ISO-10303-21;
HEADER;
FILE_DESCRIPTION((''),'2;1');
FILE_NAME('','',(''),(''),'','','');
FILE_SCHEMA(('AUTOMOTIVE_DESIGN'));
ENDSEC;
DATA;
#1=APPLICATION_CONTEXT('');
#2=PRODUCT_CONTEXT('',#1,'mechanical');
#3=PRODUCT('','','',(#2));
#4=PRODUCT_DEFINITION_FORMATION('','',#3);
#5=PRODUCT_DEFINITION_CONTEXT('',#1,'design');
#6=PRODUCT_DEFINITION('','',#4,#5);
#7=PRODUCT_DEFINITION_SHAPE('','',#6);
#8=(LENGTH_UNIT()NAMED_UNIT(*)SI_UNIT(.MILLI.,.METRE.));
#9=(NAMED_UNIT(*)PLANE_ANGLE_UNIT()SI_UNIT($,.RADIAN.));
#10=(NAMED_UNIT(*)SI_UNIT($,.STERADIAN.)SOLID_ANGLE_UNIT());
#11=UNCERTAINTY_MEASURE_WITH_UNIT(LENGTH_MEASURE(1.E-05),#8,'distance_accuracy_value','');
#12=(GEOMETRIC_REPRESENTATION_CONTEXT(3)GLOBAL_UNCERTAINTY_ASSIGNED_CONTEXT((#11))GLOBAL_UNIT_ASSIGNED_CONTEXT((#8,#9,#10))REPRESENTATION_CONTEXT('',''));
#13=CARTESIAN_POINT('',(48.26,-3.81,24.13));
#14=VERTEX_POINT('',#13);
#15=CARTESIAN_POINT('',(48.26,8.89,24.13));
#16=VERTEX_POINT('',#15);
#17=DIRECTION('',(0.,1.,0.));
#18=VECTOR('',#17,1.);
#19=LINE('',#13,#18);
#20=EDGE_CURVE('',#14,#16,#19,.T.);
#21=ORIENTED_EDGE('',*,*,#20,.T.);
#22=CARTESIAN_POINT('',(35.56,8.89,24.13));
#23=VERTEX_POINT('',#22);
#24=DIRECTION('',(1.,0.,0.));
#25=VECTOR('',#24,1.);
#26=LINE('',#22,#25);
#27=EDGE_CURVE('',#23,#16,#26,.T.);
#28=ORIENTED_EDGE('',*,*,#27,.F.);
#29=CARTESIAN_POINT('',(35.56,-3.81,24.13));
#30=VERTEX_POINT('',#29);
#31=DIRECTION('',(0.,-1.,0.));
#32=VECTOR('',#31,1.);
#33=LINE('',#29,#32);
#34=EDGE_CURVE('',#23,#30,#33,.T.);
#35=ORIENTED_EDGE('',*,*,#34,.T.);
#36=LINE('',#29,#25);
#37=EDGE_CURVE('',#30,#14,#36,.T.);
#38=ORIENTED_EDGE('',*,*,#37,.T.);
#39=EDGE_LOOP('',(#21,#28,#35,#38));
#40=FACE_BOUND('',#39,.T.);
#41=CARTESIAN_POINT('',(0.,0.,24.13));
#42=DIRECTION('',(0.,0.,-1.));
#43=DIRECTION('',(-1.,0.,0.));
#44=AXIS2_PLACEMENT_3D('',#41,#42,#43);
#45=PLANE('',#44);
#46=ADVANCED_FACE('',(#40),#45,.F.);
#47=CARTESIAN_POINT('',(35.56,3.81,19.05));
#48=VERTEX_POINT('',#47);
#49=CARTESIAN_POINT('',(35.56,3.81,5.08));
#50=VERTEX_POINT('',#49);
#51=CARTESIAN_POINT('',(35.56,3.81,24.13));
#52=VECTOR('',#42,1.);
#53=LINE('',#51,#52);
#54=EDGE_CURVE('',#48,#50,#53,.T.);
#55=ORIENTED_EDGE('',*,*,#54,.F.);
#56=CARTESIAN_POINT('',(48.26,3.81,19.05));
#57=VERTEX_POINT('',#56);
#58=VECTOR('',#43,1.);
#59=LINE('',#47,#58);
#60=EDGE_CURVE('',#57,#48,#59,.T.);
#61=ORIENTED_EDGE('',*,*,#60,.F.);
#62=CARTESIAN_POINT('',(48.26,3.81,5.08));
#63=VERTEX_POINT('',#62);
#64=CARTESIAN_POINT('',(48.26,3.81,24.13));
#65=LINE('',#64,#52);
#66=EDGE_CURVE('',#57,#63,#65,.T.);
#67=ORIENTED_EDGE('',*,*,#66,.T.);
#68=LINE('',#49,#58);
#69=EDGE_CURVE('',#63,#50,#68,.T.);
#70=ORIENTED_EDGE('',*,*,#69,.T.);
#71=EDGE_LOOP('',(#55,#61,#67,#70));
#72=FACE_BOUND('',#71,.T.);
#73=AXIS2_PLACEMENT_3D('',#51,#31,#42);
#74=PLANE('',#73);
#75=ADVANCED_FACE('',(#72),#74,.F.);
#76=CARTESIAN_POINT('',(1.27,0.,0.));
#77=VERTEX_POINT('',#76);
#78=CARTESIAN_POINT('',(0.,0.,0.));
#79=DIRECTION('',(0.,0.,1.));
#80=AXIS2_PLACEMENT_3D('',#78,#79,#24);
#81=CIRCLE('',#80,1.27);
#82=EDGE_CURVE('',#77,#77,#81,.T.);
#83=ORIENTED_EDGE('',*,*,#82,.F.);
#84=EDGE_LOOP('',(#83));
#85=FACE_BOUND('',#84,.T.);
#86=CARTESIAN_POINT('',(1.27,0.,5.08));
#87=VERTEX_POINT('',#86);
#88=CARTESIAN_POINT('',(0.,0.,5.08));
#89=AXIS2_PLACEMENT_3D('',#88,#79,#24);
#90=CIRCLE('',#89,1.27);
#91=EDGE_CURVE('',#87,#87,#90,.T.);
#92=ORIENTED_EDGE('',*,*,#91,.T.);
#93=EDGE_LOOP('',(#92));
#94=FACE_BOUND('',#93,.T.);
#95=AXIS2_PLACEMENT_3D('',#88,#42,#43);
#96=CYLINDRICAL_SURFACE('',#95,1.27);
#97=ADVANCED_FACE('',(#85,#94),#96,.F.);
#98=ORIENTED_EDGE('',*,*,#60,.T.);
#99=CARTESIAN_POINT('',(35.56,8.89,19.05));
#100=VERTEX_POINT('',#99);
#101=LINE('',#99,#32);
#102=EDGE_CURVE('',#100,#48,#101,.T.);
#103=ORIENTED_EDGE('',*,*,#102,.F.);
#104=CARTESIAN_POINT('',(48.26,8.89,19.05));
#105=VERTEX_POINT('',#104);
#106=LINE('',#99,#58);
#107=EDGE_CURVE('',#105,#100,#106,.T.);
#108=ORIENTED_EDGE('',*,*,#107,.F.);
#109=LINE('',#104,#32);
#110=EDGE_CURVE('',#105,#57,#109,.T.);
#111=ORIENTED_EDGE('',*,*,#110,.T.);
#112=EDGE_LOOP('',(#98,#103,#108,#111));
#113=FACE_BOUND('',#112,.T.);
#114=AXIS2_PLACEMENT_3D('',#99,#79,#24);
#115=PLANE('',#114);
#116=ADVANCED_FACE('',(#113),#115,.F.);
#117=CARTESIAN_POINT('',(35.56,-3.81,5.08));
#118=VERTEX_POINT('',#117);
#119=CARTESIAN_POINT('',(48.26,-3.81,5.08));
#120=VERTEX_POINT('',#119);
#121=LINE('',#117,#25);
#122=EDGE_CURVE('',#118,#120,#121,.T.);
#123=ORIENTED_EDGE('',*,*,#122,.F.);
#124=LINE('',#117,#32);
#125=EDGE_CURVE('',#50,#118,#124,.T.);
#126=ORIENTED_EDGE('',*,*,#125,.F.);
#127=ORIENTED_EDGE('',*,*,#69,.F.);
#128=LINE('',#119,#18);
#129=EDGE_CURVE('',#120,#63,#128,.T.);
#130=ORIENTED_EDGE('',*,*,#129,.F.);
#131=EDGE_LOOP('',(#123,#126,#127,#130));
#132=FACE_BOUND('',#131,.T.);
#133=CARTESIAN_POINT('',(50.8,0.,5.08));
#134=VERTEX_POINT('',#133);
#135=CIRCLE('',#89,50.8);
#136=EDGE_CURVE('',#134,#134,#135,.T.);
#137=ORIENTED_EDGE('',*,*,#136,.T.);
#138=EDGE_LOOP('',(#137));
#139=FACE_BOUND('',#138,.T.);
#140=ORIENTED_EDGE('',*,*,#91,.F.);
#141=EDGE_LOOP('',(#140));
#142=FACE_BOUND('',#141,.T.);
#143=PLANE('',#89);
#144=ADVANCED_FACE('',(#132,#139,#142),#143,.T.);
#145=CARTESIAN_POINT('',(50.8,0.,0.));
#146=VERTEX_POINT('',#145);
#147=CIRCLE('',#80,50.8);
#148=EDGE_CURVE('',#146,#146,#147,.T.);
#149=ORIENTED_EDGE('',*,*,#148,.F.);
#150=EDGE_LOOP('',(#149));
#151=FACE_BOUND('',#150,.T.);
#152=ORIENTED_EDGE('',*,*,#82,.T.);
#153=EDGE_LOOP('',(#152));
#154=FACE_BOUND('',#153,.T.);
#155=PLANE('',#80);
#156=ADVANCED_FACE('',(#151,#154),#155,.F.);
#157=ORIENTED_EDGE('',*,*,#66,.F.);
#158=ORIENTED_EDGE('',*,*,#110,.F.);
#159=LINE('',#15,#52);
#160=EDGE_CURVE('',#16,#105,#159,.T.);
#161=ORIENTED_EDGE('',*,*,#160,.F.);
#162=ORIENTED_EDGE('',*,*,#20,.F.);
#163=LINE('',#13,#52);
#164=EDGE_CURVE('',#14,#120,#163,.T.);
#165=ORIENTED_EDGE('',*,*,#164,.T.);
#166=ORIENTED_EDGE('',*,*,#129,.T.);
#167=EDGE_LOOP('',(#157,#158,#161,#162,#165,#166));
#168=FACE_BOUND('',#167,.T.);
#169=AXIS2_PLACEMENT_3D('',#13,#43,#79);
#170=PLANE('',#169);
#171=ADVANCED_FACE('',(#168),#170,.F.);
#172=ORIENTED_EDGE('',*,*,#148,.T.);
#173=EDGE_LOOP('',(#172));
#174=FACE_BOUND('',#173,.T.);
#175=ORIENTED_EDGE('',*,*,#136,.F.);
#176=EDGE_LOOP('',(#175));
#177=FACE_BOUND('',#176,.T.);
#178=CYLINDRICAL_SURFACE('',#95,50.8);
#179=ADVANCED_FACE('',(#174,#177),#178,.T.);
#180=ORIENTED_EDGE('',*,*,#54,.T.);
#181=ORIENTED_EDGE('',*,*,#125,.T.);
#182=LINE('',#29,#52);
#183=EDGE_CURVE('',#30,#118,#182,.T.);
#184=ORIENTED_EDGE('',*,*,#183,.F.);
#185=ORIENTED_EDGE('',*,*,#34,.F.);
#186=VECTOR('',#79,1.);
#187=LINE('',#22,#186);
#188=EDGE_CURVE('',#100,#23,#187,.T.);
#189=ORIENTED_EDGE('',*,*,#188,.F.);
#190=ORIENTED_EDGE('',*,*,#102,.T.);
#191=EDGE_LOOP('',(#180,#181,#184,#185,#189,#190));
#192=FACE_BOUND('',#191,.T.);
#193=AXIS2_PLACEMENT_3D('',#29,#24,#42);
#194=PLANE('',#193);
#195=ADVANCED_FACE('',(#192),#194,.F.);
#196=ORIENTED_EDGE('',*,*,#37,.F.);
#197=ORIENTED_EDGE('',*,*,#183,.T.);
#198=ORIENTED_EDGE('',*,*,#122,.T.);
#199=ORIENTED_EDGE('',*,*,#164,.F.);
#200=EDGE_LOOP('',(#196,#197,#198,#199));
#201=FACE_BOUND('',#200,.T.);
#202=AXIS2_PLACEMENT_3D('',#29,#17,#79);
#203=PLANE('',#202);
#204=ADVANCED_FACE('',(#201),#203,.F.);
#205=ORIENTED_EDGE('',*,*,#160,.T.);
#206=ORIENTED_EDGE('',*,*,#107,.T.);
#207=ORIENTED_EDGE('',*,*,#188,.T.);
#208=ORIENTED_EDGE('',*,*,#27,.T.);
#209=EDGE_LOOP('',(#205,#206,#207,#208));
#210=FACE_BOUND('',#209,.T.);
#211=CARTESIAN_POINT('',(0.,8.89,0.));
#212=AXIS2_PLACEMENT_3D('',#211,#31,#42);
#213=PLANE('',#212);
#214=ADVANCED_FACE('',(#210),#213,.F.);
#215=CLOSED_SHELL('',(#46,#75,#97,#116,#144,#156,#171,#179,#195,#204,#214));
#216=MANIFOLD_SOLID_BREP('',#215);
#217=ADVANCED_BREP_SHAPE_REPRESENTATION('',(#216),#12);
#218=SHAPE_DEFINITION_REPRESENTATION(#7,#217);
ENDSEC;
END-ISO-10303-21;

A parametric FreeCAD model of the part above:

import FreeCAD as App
import Part
import Sketcher
Q = App.Units.Quantity

doc = App.newDocument("Part")
body = doc.addObject("PartDesign::Body", "Body")

sketch1 = body.newObject("Sketcher::SketchObject", "Sketch")
sketch1.AttachmentSupport = (doc.getObject("XY_Plane"), [""])
sketch1.MapMode = "FlatFace"
sketch1.addGeometry([
    Part.Circle(App.Vector(0, 0, 0), App.Vector(0, 0, 1), 50.8),
    Part.Circle(App.Vector(0, 0, 0), App.Vector(0, 0, 1), 1.27),
], False)
sketch1.addConstraint([
    Sketcher.Constraint("Coincident", 0, 3, -1, 1),
    Sketcher.Constraint("Coincident", 1, 3, -1, 1),
    Sketcher.Constraint("Diameter", 0, Q("4 in")),
    Sketcher.Constraint("Diameter", 1, Q("0.1 in")),
])
pad1 = body.newObject("PartDesign::Pad", "Pad")
pad1.Profile = sketch1
pad1.Length = Q("0.2 in")

sketch2 = body.newObject("Sketcher::SketchObject", "Sketch001")
sketch2.AttachmentSupport = (doc.getObject("XY_Plane"), [""])
sketch2.MapMode = "FlatFace"
sketch2.AttachmentOffset = App.Placement(App.Vector(0, 0, 0.2 * 25.4), App.Rotation())
sketch2.addGeometry([
    Part.LineSegment(App.Vector(35.56, 3.81, 0), App.Vector(35.56, -3.81, 0)),
    Part.LineSegment(App.Vector(35.56, -3.81, 0), App.Vector(48.26, -3.81, 0)),
    Part.LineSegment(App.Vector(48.26, -3.81, 0), App.Vector(48.26, 3.81, 0)),
    Part.LineSegment(App.Vector(48.26, 3.81, 0), App.Vector(35.56, 3.81, 0)),
], False)
sketch2.addConstraint([
    Sketcher.Constraint("Coincident", 0, 2, 1, 1),
    Sketcher.Constraint("Coincident", 1, 2, 2, 1),
    Sketcher.Constraint("Coincident", 2, 2, 3, 1),
    Sketcher.Constraint("Coincident", 3, 2, 0, 1),
    Sketcher.Constraint("Vertical", 0),
    Sketcher.Constraint("Horizontal", 1),
    Sketcher.Constraint("Vertical", 2),
    Sketcher.Constraint("Horizontal", 3),
    Sketcher.Constraint("DistanceX", 1, 1, 1, 2, Q("0.5 in")),
    Sketcher.Constraint("DistanceY", 0, 2, 0, 1, Q("0.3 in")),
    Sketcher.Constraint("DistanceX", -1, 1, 0, 2, Q("1.4 in")),
    Sketcher.Constraint("DistanceY", 0, 2, -1, 1, Q("0.15 in")),
])
pad2 = body.newObject("PartDesign::Pad", "Pad001")
pad2.Profile = sketch2
pad2.Length = Q("0.75 in")

sketch3 = body.newObject("Sketcher::SketchObject", "Sketch002")
sketch3.AttachmentSupport = (doc.getObject("XZ_Plane"), [""])
sketch3.MapMode = "FlatFace"
sketch3.AttachmentOffset = App.Placement(App.Vector(0, 0, -0.15 * 25.4), App.Rotation())
sketch3.addGeometry([
    Part.LineSegment(App.Vector(35.56, 19.05, 0), App.Vector(35.56, 24.13, 0)),
    Part.LineSegment(App.Vector(35.56, 24.13, 0), App.Vector(48.26, 24.13, 0)),
    Part.LineSegment(App.Vector(48.26, 24.13, 0), App.Vector(48.26, 19.05, 0)),
    Part.LineSegment(App.Vector(48.26, 19.05, 0), App.Vector(35.56, 19.05, 0)),
], False)
sketch3.addConstraint([
    Sketcher.Constraint("Coincident", 0, 2, 1, 1),
    Sketcher.Constraint("Coincident", 1, 2, 2, 1),
    Sketcher.Constraint("Coincident", 2, 2, 3, 1),
    Sketcher.Constraint("Coincident", 3, 2, 0, 1),
    Sketcher.Constraint("Vertical", 0),
    Sketcher.Constraint("Horizontal", 1),
    Sketcher.Constraint("Vertical", 2),
    Sketcher.Constraint("Horizontal", 3),
    Sketcher.Constraint("DistanceX", 1, 1, 1, 2, Q("0.5 in")),
    Sketcher.Constraint("DistanceY", 0, 1, 0, 2, Q("0.2 in")),
    Sketcher.Constraint("DistanceX", -1, 1, 0, 2, Q("1.4 in")),
    Sketcher.Constraint("DistanceY", -1, 1, 0, 2, Q("0.95 in")),
])
pad3 = body.newObject("PartDesign::Pad", "Pad002")
pad3.Profile = sketch3
pad3.Length = Q("0.2 in")
pad3.Reversed = True

doc.recompute()
